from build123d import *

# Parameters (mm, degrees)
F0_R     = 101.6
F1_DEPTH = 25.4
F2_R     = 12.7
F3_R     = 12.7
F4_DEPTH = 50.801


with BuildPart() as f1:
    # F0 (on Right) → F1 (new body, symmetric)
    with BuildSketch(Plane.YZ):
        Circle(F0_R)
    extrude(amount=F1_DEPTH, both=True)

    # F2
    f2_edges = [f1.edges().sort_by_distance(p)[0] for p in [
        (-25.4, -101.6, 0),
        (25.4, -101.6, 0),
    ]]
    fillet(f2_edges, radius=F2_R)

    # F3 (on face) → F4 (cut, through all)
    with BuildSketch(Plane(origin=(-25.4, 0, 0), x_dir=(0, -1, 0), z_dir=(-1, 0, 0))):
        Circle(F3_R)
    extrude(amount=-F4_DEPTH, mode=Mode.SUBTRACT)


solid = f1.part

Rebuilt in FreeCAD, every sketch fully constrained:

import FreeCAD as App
import Part
import Sketcher
Q = App.Units.Quantity


def edges_at(feature, points):
    """Names of the edges that pass closest to the given points."""
    edges = feature.Shape.Edges
    near = lambda p: min(range(len(edges)), key=lambda i: edges[i].distToShape(Part.Vertex(*p))[0])
    return sorted({f"Edge{near(p) + 1}" for p in points})

doc = App.newDocument("Part")
body = doc.addObject("PartDesign::Body", "Body")

# Sketch on YZ plane
sketch1 = body.newObject("Sketcher::SketchObject", "Sketch")
sketch1.AttachmentSupport = (doc.getObject("YZ_Plane"), [""])
sketch1.MapMode = "FlatFace"
sketch1.addGeometry(Part.Circle(App.Vector(0, 0, 0), App.Vector(0, 0, 1), 101.6), False)
sketch1.addConstraint([
    Sketcher.Constraint("Coincident", 0, 3, -1, 1),
    Sketcher.Constraint("Diameter", 0, Q("8 in")),
])
pad1 = body.newObject("PartDesign::Pad", "Pad")
pad1.Profile = sketch1
pad1.Length = Q("2 in")
pad1.Midplane = True
doc.recompute()

fillet = body.newObject("PartDesign::Fillet", "Fillet")
fillet.Base = (pad1, edges_at(pad1, [(-25.4, -101.6, 0), (25.4, -101.6, 0)]))
fillet.Radius = Q("0.5 in")

# Sketch on YZ plane
sketch2 = body.newObject("Sketcher::SketchObject", "Sketch001")
sketch2.AttachmentSupport = (doc.getObject("YZ_Plane"), [""])
sketch2.MapMode = "FlatFace"
sketch2.AttachmentOffset = App.Placement(App.Vector(0, 0, -1 * 25.4), App.Rotation())
sketch2.addGeometry(Part.Circle(App.Vector(0, 0, 0), App.Vector(0, 0, 1), 12.7), False)
sketch2.addConstraint([
    Sketcher.Constraint("Coincident", 0, 3, -1, 1),
    Sketcher.Constraint("Diameter", 0, Q("1 in")),
])
pocket1 = body.newObject("PartDesign::Pocket", "Pocket")
pocket1.Profile = sketch2
pocket1.Type = "ThroughAll"
pocket1.Reversed = True

doc.recompute()
